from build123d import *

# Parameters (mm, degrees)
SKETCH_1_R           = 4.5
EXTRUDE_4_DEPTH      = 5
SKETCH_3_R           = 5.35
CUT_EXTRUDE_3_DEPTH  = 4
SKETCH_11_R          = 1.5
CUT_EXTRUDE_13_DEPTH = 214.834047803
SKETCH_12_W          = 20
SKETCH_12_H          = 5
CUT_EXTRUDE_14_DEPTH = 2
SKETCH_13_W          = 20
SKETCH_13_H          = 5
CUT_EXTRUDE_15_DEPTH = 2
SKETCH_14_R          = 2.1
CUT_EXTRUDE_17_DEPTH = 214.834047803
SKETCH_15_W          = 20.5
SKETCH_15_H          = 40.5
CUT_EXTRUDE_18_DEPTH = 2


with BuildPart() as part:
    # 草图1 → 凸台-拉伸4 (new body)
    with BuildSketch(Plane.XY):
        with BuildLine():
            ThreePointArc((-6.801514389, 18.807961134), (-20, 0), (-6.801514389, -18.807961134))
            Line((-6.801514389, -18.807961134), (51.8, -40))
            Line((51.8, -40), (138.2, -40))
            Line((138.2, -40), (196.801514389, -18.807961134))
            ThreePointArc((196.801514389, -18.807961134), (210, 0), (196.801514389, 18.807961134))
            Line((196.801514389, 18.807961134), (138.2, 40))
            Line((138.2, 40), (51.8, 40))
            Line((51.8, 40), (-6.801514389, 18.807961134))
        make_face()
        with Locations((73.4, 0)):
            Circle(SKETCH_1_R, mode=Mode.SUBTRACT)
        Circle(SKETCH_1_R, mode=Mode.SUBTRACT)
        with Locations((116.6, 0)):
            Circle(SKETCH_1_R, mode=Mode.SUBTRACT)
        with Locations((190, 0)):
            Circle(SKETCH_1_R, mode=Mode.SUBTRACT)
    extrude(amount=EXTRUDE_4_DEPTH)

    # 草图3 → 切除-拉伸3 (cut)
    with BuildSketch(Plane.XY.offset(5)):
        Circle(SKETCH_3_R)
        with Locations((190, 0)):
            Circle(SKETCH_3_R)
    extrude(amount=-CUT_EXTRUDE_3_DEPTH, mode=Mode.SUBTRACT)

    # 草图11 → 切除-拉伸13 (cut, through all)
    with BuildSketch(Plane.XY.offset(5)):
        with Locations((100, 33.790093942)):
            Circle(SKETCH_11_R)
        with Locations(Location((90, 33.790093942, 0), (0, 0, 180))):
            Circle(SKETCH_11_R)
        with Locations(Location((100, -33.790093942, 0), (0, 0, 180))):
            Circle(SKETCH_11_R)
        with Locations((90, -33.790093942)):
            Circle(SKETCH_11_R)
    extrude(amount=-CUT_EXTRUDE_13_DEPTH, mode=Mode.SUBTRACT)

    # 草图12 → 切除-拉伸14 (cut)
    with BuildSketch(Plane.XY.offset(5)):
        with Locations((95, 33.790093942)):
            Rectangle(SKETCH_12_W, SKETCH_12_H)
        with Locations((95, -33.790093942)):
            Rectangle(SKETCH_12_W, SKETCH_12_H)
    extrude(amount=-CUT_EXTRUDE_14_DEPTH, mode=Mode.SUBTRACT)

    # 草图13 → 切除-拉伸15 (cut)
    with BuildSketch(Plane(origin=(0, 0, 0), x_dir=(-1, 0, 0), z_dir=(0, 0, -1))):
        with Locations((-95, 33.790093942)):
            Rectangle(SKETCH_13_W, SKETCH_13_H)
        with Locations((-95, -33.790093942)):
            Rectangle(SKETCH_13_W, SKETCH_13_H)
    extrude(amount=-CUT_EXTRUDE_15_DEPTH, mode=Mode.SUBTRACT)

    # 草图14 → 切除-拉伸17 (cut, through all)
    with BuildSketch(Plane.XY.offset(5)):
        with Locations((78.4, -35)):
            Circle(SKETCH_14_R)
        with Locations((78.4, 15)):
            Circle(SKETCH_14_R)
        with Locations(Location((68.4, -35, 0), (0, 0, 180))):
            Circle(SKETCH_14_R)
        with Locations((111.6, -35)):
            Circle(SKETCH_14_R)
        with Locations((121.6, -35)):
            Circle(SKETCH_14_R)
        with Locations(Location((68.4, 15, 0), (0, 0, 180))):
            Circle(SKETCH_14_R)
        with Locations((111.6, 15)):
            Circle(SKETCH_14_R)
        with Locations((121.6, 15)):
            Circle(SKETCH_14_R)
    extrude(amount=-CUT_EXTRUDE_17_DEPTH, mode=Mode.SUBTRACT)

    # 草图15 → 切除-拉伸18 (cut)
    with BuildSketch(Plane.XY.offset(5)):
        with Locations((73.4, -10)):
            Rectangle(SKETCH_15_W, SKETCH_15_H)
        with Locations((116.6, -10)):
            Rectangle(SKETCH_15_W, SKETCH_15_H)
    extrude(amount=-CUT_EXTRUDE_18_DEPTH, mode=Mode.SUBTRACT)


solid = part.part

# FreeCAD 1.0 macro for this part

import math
import FreeCAD as App
import Part
import Sketcher


def add_polygon(sketch, points):
    """Adds a closed chain of lines whose ends are joined by coincident constraints."""
    first, n = sketch.GeometryCount, len(points)
    for a, b in zip(points, points[1:] + points[:1]):
        sketch.addGeometry(Part.LineSegment(App.Vector(*a, 0), App.Vector(*b, 0)), False)
    for i in range(n):
        sketch.addConstraint(Sketcher.Constraint("Coincident", first + i, 2, first + (i + 1) % n, 1))

doc = App.newDocument("Part")
body = doc.addObject("PartDesign::Body", "Body")

# Sketch on XY plane
sketch1 = doc.addObject("Sketcher::SketchObject", "Sketch")
body.addObject(sketch1)
sketch1.AttachmentSupport = (doc.XY_Plane, [""])
sketch1.MapMode = "FlatFace"
sketch1.addGeometry([
    Part.ArcOfCircle(Part.Circle(App.Vector(0, 0, 0), App.Vector(0, 0, 1), 20), math.radians(110), math.radians(250)),  # 0
    Part.LineSegment(App.Vector(-6.8, -18.8, 0), App.Vector(51.8, -40, 0)),  # 1
    Part.LineSegment(App.Vector(51.8, -40, 0), App.Vector(138.2, -40, 0)),  # 2
    Part.LineSegment(App.Vector(138.2, -40, 0), App.Vector(196.8, -18.8, 0)),  # 3
    Part.ArcOfCircle(Part.Circle(App.Vector(190, 0, 0), App.Vector(0, 0, 1), 20), math.radians(-70), math.radians(70)),  # 4
    Part.LineSegment(App.Vector(196.8, 18.8, 0), App.Vector(138.2, 40, 0)),  # 5
    Part.LineSegment(App.Vector(138.2, 40, 0), App.Vector(51.8, 40, 0)),  # 6
    Part.LineSegment(App.Vector(51.8, 40, 0), App.Vector(-6.8, 18.8, 0)),  # 7
    Part.Circle(App.Vector(0, 0, 0), App.Vector(0, 0, 1), 4.5),  # 8
    Part.Circle(App.Vector(73.4, 0, 0), App.Vector(0, 0, 1), 4.5),  # 9
    Part.Circle(App.Vector(116.6, 0, 0), App.Vector(0, 0, 1), 4.5),  # 10
    Part.Circle(App.Vector(190, 0, 0), App.Vector(0, 0, 1), 4.5),  # 11
], False)
sketch1.addConstraint([
    Sketcher.Constraint("Tangent", 0, 2, 1, 1),
    Sketcher.Constraint("Coincident", 1, 2, 2, 1),
    Sketcher.Constraint("Coincident", 2, 2, 3, 1),
    Sketcher.Constraint("Tangent", 3, 2, 4, 1),
    Sketcher.Constraint("Tangent", 4, 2, 5, 1),
    Sketcher.Constraint("Coincident", 5, 2, 6, 1),
    Sketcher.Constraint("Coincident", 6, 2, 7, 1),
    Sketcher.Constraint("Tangent", 7, 2, 0, 1),
    Sketcher.Constraint("Horizontal", 2),
    Sketcher.Constraint("Horizontal", 6),
    Sketcher.Constraint("Coincident", 0, 3, -1, 1),
    Sketcher.Constraint("Coincident", 8, 3, -1, 1),
    Sketcher.Constraint("Coincident", 11, 3, 4, 3),
    Sketcher.Constraint("Equal", 0, 4),
    Sketcher.Constraint("Equal", 8, 9),
    Sketcher.Constraint("Equal", 9, 10),
    Sketcher.Constraint("Equal", 10, 11),
    Sketcher.Constraint("Symmetric", 3, 2, 4, 2, -1),
    Sketcher.Constraint("Symmetric", 1, 2, 6, 2, -1),
    Sketcher.Constraint("PointOnObject", 9, 3, -1),
    Sketcher.Constraint("PointOnObject", 10, 3, -1),
    Sketcher.Constraint("Parallel", 1, 5),
    Sketcher.Constraint("Diameter", 8, 9.0),
    Sketcher.Constraint("Radius", 0, 20.0),
    Sketcher.Constraint("DistanceX", 2, 1, 2, 2, 86.4),
    Sketcher.Constraint("DistanceX", -1, 1, 4, 3, 190.0),
    Sketcher.Constraint("DistanceY", 1, 2, -1, 1, 40.0),
    Sketcher.Constraint("DistanceX", -1, 1, 9, 3, 73.4),
    Sketcher.Constraint("DistanceX", -1, 1, 10, 3, 116.6),
])
pad1 = doc.addObject("PartDesign::Pad", "Pad")
body.addObject(pad1)
pad1.Profile = sketch1
pad1.Length = 5

# Sketch on XY plane
sketch2 = doc.addObject("Sketcher::SketchObject", "Sketch001")
body.addObject(sketch2)
sketch2.AttachmentSupport = (doc.XY_Plane, [""])
sketch2.MapMode = "FlatFace"
sketch2.AttachmentOffset = App.Placement(App.Vector(0, 0, 5), App.Rotation())
sketch2.addGeometry([
    Part.Circle(App.Vector(0, 0, 0), App.Vector(0, 0, 1), 5),
    Part.Circle(App.Vector(190, 0, 0), App.Vector(0, 0, 1), 5),
], False)
sketch2.addConstraint([
    Sketcher.Constraint("Coincident", 0, 3, -1, 1),
    Sketcher.Constraint("Equal", 0, 1),
    Sketcher.Constraint("PointOnObject", 1, 3, -1),
    Sketcher.Constraint("Diameter", 0, 10.7),
    Sketcher.Constraint("DistanceX", -1, 1, 1, 3, 190.0),
])
pocket1 = doc.addObject("PartDesign::Pocket", "Pocket")
body.addObject(pocket1)
pocket1.Profile = sketch2
pocket1.Length = 4

# Sketch on XY plane
sketch3 = doc.addObject("Sketcher::SketchObject", "Sketch002")
body.addObject(sketch3)
sketch3.AttachmentSupport = (doc.XY_Plane, [""])
sketch3.MapMode = "FlatFace"
sketch3.AttachmentOffset = App.Placement(App.Vector(0, 0, 5), App.Rotation())
sketch3.addGeometry([
    Part.Circle(App.Vector(100, 33.8, 0), App.Vector(0, 0, 1), 1.5),
    Part.Circle(App.Vector(90, 33.8, 0), App.Vector(0, 0, 1), 1.5),
    Part.Circle(App.Vector(100, -33.8, 0), App.Vector(0, 0, 1), 1.5),
    Part.Circle(App.Vector(90, -33.8, 0), App.Vector(0, 0, 1), 1.5),
], False)
sketch3.addConstraint([
    Sketcher.Constraint("Equal", 0, 1),
    Sketcher.Constraint("Equal", 1, 2),
    Sketcher.Constraint("Equal", 2, 3),
    Sketcher.Constraint("Symmetric", 0, 3, 2, 3, -1),
    Sketcher.Constraint("Symmetric", 1, 3, 3, 3, -1),
    Sketcher.Constraint("Horizontal", 0, 3, 1, 3),
    Sketcher.Constraint("Diameter", 0, 3.0),
    Sketcher.Constraint("DistanceX", -1, 1, 0, 3, 100.0),
    Sketcher.Constraint("DistanceX", -1, 1, 1, 3, 90.0),
    Sketcher.Constraint("DistanceY", -1, 1, 0, 3, 33.790094),
])
pocket2 = doc.addObject("PartDesign::Pocket", "Pocket001")
body.addObject(pocket2)
pocket2.Profile = sketch3
pocket2.Type = "ThroughAll"

# Sketch on XY plane
sketch4 = doc.addObject("Sketcher::SketchObject", "Sketch003")
body.addObject(sketch4)
sketch4.AttachmentSupport = (doc.XY_Plane, [""])
sketch4.MapMode = "FlatFace"
sketch4.AttachmentOffset = App.Placement(App.Vector(0, 0, 5), App.Rotation())
add_polygon(sketch4, [(85, 36), (85, 31), (105, 31), (105, 36)])  # lines 0-3
add_polygon(sketch4, [(85, -31), (85, -36), (105, -36), (105, -31)])  # lines 4-7
sketch4.addConstraint([
    Sketcher.Constraint("Vertical", 0),
    Sketcher.Constraint("Horizontal", 1),
    Sketcher.Constraint("Vertical", 2),
    Sketcher.Constraint("Horizontal", 3),
    Sketcher.Constraint("Vertical", 4),
    Sketcher.Constraint("Horizontal", 5),
    Sketcher.Constraint("Vertical", 6),
    Sketcher.Constraint("Horizontal", 7),
    Sketcher.Constraint("Symmetric", 3, 2, 4, 2, -1),
    Sketcher.Constraint("Symmetric", 1, 2, 6, 2, -1),
    Sketcher.Constraint("DistanceX", 1, 1, 1, 2, 20.0),
    Sketcher.Constraint("DistanceY", 0, 2, 0, 1, 5.0),
    Sketcher.Constraint("DistanceX", -1, 1, 0, 2, 85.0),
    Sketcher.Constraint("DistanceY", -1, 1, 0, 2, 31.290094),
])
pocket3 = doc.addObject("PartDesign::Pocket", "Pocket002")
body.addObject(pocket3)
pocket3.Profile = sketch4
pocket3.Length = 2

# Sketch on XY plane
sketch5 = doc.addObject("Sketcher::SketchObject", "Sketch004")
body.addObject(sketch5)
sketch5.AttachmentSupport = (doc.XY_Plane, [""])
sketch5.MapMode = "FlatFace"
add_polygon(sketch5, [(105, 36), (105, 31), (85, 31), (85, 36)])  # lines 0-3
add_polygon(sketch5, [(105, -31), (105, -36), (85, -36), (85, -31)])  # lines 4-7
sketch5.addConstraint([
    Sketcher.Constraint("Vertical", 0),
    Sketcher.Constraint("Horizontal", 1),
    Sketcher.Constraint("Vertical", 2),
    Sketcher.Constraint("Horizontal", 3),
    Sketcher.Constraint("Vertical", 4),
    Sketcher.Constraint("Horizontal", 5),
    Sketcher.Constraint("Vertical", 6),
    Sketcher.Constraint("Horizontal", 7),
    Sketcher.Constraint("Symmetric", 3, 2, 4, 2, -1),
    Sketcher.Constraint("Symmetric", 1, 2, 6, 2, -1),
    Sketcher.Constraint("DistanceX", 1, 2, 1, 1, 20.0),
    Sketcher.Constraint("DistanceY", 0, 2, 0, 1, 5.0),
    Sketcher.Constraint("DistanceX", -1, 1, 0, 2, 105.0),
    Sketcher.Constraint("DistanceY", -1, 1, 0, 2, 31.290094),
])
pocket4 = doc.addObject("PartDesign::Pocket", "Pocket003")
body.addObject(pocket4)
pocket4.Profile = sketch5
pocket4.Length = 2
pocket4.Reversed = True

# Sketch on XY plane
sketch6 = doc.addObject("Sketcher::SketchObject", "Sketch005")
body.addObject(sketch6)
sketch6.AttachmentSupport = (doc.XY_Plane, [""])
sketch6.MapMode = "FlatFace"
sketch6.AttachmentOffset = App.Placement(App.Vector(0, 0, 5), App.Rotation())
sketch6.addGeometry([
    Part.Circle(App.Vector(78.4, -35, 0), App.Vector(0, 0, 1), 2.1),  # 0
    Part.Circle(App.Vector(78.4, 15, 0), App.Vector(0, 0, 1), 2.1),  # 1
    Part.Circle(App.Vector(68.4, -35, 0), App.Vector(0, 0, 1), 2.1),  # 2
    Part.Circle(App.Vector(111.6, -35, 0), App.Vector(0, 0, 1), 2.1),  # 3
    Part.Circle(App.Vector(121.6, -35, 0), App.Vector(0, 0, 1), 2.1),  # 4
    Part.Circle(App.Vector(68.4, 15, 0), App.Vector(0, 0, 1), 2.1),  # 5
    Part.Circle(App.Vector(111.6, 15, 0), App.Vector(0, 0, 1), 2.1),  # 6
    Part.Circle(App.Vector(121.6, 15, 0), App.Vector(0, 0, 1), 2.1),  # 7
], False)
sketch6.addConstraint([
    Sketcher.Constraint("Equal", 0, 1),
    Sketcher.Constraint("Equal", 1, 2),
    Sketcher.Constraint("Equal", 2, 3),
    Sketcher.Constraint("Equal", 3, 4),
    Sketcher.Constraint("Equal", 4, 5),
    Sketcher.Constraint("Equal", 5, 6),
    Sketcher.Constraint("Equal", 6, 7),
    Sketcher.Constraint("Horizontal", 0, 3, 2, 3),
    Sketcher.Constraint("Horizontal", 2, 3, 3, 3),
    Sketcher.Constraint("Horizontal", 3, 3, 4, 3),
    Sketcher.Constraint("Horizontal", 1, 3, 5, 3),
    Sketcher.Constraint("Horizontal", 5, 3, 6, 3),
    Sketcher.Constraint("Horizontal", 6, 3, 7, 3),
    Sketcher.Constraint("Vertical", 0, 3, 1, 3),
    Sketcher.Constraint("Vertical", 2, 3, 5, 3),
    Sketcher.Constraint("Vertical", 3, 3, 6, 3),
    Sketcher.Constraint("Vertical", 4, 3, 7, 3),
    Sketcher.Constraint("Diameter", 0, 4.2),
    Sketcher.Constraint("DistanceY", 0, 3, -1, 1, 35.0),
    Sketcher.Constraint("DistanceY", -1, 1, 1, 3, 15.0),
    Sketcher.Constraint("DistanceX", 2, 3, 0, 3, 10.0),
    Sketcher.Constraint("DistanceX", 3, 3, 4, 3, 10.0),
    Sketcher.Constraint("DistanceX", -1, 1, 0, 3, 78.4),
    Sketcher.Constraint("DistanceX", -1, 1, 3, 3, 111.6),
])
pocket5 = doc.addObject("PartDesign::Pocket", "Pocket004")
body.addObject(pocket5)
pocket5.Profile = sketch6
pocket5.Type = "ThroughAll"

# Sketch on XY plane
sketch7 = doc.addObject("Sketcher::SketchObject", "Sketch006")
body.addObject(sketch7)
sketch7.AttachmentSupport = (doc.XY_Plane, [""])
sketch7.MapMode = "FlatFace"
sketch7.AttachmentOffset = App.Placement(App.Vector(0, 0, 5), App.Rotation())
add_polygon(sketch7, [(63, 10), (63, -30), (84, -30), (84, 10)])  # lines 0-3
add_polygon(sketch7, [(106, 10), (106, -30), (127, -30), (127, 10)])  # lines 4-7
sketch7.addConstraint([
    Sketcher.Constraint("Vertical", 0),
    Sketcher.Constraint("Horizontal", 1),
    Sketcher.Constraint("Vertical", 2),
    Sketcher.Constraint("Horizontal", 3),
    Sketcher.Constraint("Vertical", 4),
    Sketcher.Constraint("Horizontal", 5),
    Sketcher.Constraint("Vertical", 6),
    Sketcher.Constraint("Horizontal", 7),
    Sketcher.Constraint("Horizontal", 1, 2, 4, 2),
    Sketcher.Constraint("Horizontal", 3, 2, 6, 2),
    Sketcher.Constraint("Equal", 3, 5),
    Sketcher.Constraint("DistanceX", 1, 1, 1, 2, 20.5),
    Sketcher.Constraint("DistanceY", 0, 2, 0, 1, 40.5),
    Sketcher.Constraint("DistanceX", 1, 2, 4, 2, 22.7),
    Sketcher.Constraint("DistanceX", -1, 1, 0, 2, 63.15),
    Sketcher.Constraint("DistanceY", 0, 2, -1, 1, 30.25),
])
pocket6 = doc.addObject("PartDesign::Pocket", "Pocket005")
body.addObject(pocket6)
pocket6.Profile = sketch7
pocket6.Length = 2

doc.recompute()
